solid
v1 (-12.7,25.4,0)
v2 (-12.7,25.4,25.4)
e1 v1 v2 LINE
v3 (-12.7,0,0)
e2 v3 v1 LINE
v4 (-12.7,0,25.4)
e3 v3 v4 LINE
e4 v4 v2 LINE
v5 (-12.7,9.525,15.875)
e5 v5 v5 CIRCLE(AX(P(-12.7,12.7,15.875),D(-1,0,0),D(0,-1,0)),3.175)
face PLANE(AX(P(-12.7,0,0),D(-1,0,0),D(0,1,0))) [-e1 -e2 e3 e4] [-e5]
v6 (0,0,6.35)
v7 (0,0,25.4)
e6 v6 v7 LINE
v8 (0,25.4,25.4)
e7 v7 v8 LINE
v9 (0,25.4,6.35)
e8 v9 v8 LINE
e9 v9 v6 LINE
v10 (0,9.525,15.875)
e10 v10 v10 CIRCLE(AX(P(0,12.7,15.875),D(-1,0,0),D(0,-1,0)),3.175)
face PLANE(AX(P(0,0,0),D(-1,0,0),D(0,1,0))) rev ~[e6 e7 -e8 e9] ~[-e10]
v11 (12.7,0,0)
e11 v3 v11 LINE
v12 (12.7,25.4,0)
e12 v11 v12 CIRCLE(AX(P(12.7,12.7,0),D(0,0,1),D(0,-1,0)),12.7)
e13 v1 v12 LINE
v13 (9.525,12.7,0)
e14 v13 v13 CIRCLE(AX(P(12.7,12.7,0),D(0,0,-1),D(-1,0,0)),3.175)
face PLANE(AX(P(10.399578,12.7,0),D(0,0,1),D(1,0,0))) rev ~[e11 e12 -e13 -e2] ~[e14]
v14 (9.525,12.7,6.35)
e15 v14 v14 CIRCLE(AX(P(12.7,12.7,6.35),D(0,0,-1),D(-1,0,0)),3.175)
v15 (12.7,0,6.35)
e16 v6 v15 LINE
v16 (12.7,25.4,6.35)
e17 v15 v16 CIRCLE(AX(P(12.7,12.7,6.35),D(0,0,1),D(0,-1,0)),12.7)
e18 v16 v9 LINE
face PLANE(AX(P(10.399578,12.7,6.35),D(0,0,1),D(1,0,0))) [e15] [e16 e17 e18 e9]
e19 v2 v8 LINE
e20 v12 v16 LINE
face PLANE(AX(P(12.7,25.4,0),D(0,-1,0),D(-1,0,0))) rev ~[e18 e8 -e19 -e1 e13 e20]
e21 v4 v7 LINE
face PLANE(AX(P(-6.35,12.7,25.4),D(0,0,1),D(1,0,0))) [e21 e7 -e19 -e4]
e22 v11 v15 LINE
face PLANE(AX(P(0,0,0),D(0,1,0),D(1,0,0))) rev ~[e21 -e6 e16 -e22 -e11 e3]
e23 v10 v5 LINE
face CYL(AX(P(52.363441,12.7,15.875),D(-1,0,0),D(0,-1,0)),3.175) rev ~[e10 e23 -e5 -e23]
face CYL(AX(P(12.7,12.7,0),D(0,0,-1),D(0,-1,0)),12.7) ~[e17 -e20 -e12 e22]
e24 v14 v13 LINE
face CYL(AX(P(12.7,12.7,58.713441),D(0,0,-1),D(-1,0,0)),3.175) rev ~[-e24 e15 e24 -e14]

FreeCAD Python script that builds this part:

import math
import FreeCAD as App
import Part
import Sketcher
Q = App.Units.Quantity


def add_polygon(sketch, points):
    """Adds a closed chain of lines whose ends are joined by coincident constraints."""
    first, n = sketch.GeometryCount, len(points)
    for a, b in zip(points, points[1:] + points[:1]):
        sketch.addGeometry(Part.LineSegment(App.Vector(*a, 0), App.Vector(*b, 0)), False)
    for i in range(n):
        sketch.addConstraint(Sketcher.Constraint("Coincident", first + i, 2, first + (i + 1) % n, 1))

doc = App.newDocument("Part")
body = doc.addObject("PartDesign::Body", "Body")

# Sketch on XY plane
sketch1 = body.newObject("Sketcher::SketchObject", "Sketch")
sketch1.AttachmentSupport = (doc.getObject("XY_Plane"), [""])
sketch1.MapMode = "FlatFace"
add_polygon(sketch1, [(-12.7, 25.4), (-12.7, 0), (0, 0), (0, 25.4)])  # lines 0-3
sketch1.addConstraint([
    Sketcher.Constraint("Vertical", 0),
    Sketcher.Constraint("Horizontal", 1),
    Sketcher.Constraint("Vertical", 2),
    Sketcher.Constraint("Horizontal", 3),
    Sketcher.Constraint("Coincident", 1, 2, -1, 1),
    Sketcher.Constraint("DistanceY", 0, 2, 0, 1, Q("1 in")),
    Sketcher.Constraint("DistanceX", 1, 1, 1, 2, Q("0.5 in")),
])
pad1 = body.newObject("PartDesign::Pad", "Pad")
pad1.Profile = sketch1
pad1.Length = Q("1 in")

# Sketch on XY plane
sketch2 = body.newObject("Sketcher::SketchObject", "Sketch001")
sketch2.AttachmentSupport = (doc.getObject("XY_Plane"), [""])
sketch2.MapMode = "FlatFace"
sketch2.addGeometry([
    Part.LineSegment(App.Vector(0, 25.4, 0), App.Vector(0, 0, 0)),
    Part.LineSegment(App.Vector(0, 0, 0), App.Vector(12.7, 0, 0)),
    Part.ArcOfCircle(Part.Circle(App.Vector(12.7, 12.7, 0), App.Vector(0, 0, 1), 12.7), math.radians(-90), math.radians(90)),
    Part.LineSegment(App.Vector(12.7, 25.4, 0), App.Vector(0, 25.4, 0)),
], False)
sketch2.addConstraint([
    Sketcher.Constraint("Coincident", 0, 2, 1, 1),
    Sketcher.Constraint("Tangent", 1, 2, 2, 1),
    Sketcher.Constraint("Tangent", 2, 2, 3, 1),
    Sketcher.Constraint("Coincident", 3, 2, 0, 1),
    Sketcher.Constraint("Vertical", 0),
    Sketcher.Constraint("Horizontal", 1),
    Sketcher.Constraint("Horizontal", 3),
    Sketcher.Constraint("Coincident", 0, 2, -1, 1),
    Sketcher.Constraint("Radius", 2, Q("0.5 in")),
    Sketcher.Constraint("DistanceX", 1, 1, 1, 2, Q("0.5 in")),
])
pad2 = body.newObject("PartDesign::Pad", "Pad001")
pad2.Profile = sketch2
pad2.Length = Q("0.25 in")

# Sketch on YZ plane
sketch3 = body.newObject("Sketcher::SketchObject", "Sketch002")
sketch3.AttachmentSupport = (doc.getObject("YZ_Plane"), [""])
sketch3.MapMode = "FlatFace"
sketch3.addGeometry(Part.Circle(App.Vector(12.7, 15.875, 0), App.Vector(0, 0, 1), 3.175), False)
sketch3.addConstraint([
    Sketcher.Constraint("Diameter", 0, Q("0.25 in")),
    Sketcher.Constraint("DistanceX", -1, 1, 0, 3, Q("0.5 in")),
    Sketcher.Constraint("DistanceY", -1, 1, 0, 3, Q("0.625 in")),
])
doc.recompute()
hole = body.newObject("PartDesign::Hole", "Hole")
hole.Profile = sketch3
hole.ThreadType = "None"
hole.Diameter = Q("0.25 in")
hole.DepthType = "ThroughAll"

# Sketch on XY plane
sketch4 = body.newObject("Sketcher::SketchObject", "Sketch003")
sketch4.AttachmentSupport = (doc.getObject("XY_Plane"), [""])
sketch4.MapMode = "FlatFace"
sketch4.AttachmentOffset = App.Placement(App.Vector(0, 0, 0.25 * 25.4), App.Rotation())
sketch4.addGeometry(Part.Circle(App.Vector(12.7, 12.7, 0), App.Vector(0, 0, 1), 3.175), False)
sketch4.addConstraint([
    Sketcher.Constraint("Diameter", 0, Q("0.25 in")),
    Sketcher.Constraint("DistanceX", -1, 1, 0, 3, Q("0.5 in")),
    Sketcher.Constraint("DistanceY", -1, 1, 0, 3, Q("0.5 in")),
])
doc.recompute()
hole2 = body.newObject("PartDesign::Hole", "Hole001")
hole2.Profile = sketch4
hole2.ThreadType = "None"
hole2.Diameter = Q("0.25 in")
hole2.DepthType = "ThroughAll"

doc.recompute()
